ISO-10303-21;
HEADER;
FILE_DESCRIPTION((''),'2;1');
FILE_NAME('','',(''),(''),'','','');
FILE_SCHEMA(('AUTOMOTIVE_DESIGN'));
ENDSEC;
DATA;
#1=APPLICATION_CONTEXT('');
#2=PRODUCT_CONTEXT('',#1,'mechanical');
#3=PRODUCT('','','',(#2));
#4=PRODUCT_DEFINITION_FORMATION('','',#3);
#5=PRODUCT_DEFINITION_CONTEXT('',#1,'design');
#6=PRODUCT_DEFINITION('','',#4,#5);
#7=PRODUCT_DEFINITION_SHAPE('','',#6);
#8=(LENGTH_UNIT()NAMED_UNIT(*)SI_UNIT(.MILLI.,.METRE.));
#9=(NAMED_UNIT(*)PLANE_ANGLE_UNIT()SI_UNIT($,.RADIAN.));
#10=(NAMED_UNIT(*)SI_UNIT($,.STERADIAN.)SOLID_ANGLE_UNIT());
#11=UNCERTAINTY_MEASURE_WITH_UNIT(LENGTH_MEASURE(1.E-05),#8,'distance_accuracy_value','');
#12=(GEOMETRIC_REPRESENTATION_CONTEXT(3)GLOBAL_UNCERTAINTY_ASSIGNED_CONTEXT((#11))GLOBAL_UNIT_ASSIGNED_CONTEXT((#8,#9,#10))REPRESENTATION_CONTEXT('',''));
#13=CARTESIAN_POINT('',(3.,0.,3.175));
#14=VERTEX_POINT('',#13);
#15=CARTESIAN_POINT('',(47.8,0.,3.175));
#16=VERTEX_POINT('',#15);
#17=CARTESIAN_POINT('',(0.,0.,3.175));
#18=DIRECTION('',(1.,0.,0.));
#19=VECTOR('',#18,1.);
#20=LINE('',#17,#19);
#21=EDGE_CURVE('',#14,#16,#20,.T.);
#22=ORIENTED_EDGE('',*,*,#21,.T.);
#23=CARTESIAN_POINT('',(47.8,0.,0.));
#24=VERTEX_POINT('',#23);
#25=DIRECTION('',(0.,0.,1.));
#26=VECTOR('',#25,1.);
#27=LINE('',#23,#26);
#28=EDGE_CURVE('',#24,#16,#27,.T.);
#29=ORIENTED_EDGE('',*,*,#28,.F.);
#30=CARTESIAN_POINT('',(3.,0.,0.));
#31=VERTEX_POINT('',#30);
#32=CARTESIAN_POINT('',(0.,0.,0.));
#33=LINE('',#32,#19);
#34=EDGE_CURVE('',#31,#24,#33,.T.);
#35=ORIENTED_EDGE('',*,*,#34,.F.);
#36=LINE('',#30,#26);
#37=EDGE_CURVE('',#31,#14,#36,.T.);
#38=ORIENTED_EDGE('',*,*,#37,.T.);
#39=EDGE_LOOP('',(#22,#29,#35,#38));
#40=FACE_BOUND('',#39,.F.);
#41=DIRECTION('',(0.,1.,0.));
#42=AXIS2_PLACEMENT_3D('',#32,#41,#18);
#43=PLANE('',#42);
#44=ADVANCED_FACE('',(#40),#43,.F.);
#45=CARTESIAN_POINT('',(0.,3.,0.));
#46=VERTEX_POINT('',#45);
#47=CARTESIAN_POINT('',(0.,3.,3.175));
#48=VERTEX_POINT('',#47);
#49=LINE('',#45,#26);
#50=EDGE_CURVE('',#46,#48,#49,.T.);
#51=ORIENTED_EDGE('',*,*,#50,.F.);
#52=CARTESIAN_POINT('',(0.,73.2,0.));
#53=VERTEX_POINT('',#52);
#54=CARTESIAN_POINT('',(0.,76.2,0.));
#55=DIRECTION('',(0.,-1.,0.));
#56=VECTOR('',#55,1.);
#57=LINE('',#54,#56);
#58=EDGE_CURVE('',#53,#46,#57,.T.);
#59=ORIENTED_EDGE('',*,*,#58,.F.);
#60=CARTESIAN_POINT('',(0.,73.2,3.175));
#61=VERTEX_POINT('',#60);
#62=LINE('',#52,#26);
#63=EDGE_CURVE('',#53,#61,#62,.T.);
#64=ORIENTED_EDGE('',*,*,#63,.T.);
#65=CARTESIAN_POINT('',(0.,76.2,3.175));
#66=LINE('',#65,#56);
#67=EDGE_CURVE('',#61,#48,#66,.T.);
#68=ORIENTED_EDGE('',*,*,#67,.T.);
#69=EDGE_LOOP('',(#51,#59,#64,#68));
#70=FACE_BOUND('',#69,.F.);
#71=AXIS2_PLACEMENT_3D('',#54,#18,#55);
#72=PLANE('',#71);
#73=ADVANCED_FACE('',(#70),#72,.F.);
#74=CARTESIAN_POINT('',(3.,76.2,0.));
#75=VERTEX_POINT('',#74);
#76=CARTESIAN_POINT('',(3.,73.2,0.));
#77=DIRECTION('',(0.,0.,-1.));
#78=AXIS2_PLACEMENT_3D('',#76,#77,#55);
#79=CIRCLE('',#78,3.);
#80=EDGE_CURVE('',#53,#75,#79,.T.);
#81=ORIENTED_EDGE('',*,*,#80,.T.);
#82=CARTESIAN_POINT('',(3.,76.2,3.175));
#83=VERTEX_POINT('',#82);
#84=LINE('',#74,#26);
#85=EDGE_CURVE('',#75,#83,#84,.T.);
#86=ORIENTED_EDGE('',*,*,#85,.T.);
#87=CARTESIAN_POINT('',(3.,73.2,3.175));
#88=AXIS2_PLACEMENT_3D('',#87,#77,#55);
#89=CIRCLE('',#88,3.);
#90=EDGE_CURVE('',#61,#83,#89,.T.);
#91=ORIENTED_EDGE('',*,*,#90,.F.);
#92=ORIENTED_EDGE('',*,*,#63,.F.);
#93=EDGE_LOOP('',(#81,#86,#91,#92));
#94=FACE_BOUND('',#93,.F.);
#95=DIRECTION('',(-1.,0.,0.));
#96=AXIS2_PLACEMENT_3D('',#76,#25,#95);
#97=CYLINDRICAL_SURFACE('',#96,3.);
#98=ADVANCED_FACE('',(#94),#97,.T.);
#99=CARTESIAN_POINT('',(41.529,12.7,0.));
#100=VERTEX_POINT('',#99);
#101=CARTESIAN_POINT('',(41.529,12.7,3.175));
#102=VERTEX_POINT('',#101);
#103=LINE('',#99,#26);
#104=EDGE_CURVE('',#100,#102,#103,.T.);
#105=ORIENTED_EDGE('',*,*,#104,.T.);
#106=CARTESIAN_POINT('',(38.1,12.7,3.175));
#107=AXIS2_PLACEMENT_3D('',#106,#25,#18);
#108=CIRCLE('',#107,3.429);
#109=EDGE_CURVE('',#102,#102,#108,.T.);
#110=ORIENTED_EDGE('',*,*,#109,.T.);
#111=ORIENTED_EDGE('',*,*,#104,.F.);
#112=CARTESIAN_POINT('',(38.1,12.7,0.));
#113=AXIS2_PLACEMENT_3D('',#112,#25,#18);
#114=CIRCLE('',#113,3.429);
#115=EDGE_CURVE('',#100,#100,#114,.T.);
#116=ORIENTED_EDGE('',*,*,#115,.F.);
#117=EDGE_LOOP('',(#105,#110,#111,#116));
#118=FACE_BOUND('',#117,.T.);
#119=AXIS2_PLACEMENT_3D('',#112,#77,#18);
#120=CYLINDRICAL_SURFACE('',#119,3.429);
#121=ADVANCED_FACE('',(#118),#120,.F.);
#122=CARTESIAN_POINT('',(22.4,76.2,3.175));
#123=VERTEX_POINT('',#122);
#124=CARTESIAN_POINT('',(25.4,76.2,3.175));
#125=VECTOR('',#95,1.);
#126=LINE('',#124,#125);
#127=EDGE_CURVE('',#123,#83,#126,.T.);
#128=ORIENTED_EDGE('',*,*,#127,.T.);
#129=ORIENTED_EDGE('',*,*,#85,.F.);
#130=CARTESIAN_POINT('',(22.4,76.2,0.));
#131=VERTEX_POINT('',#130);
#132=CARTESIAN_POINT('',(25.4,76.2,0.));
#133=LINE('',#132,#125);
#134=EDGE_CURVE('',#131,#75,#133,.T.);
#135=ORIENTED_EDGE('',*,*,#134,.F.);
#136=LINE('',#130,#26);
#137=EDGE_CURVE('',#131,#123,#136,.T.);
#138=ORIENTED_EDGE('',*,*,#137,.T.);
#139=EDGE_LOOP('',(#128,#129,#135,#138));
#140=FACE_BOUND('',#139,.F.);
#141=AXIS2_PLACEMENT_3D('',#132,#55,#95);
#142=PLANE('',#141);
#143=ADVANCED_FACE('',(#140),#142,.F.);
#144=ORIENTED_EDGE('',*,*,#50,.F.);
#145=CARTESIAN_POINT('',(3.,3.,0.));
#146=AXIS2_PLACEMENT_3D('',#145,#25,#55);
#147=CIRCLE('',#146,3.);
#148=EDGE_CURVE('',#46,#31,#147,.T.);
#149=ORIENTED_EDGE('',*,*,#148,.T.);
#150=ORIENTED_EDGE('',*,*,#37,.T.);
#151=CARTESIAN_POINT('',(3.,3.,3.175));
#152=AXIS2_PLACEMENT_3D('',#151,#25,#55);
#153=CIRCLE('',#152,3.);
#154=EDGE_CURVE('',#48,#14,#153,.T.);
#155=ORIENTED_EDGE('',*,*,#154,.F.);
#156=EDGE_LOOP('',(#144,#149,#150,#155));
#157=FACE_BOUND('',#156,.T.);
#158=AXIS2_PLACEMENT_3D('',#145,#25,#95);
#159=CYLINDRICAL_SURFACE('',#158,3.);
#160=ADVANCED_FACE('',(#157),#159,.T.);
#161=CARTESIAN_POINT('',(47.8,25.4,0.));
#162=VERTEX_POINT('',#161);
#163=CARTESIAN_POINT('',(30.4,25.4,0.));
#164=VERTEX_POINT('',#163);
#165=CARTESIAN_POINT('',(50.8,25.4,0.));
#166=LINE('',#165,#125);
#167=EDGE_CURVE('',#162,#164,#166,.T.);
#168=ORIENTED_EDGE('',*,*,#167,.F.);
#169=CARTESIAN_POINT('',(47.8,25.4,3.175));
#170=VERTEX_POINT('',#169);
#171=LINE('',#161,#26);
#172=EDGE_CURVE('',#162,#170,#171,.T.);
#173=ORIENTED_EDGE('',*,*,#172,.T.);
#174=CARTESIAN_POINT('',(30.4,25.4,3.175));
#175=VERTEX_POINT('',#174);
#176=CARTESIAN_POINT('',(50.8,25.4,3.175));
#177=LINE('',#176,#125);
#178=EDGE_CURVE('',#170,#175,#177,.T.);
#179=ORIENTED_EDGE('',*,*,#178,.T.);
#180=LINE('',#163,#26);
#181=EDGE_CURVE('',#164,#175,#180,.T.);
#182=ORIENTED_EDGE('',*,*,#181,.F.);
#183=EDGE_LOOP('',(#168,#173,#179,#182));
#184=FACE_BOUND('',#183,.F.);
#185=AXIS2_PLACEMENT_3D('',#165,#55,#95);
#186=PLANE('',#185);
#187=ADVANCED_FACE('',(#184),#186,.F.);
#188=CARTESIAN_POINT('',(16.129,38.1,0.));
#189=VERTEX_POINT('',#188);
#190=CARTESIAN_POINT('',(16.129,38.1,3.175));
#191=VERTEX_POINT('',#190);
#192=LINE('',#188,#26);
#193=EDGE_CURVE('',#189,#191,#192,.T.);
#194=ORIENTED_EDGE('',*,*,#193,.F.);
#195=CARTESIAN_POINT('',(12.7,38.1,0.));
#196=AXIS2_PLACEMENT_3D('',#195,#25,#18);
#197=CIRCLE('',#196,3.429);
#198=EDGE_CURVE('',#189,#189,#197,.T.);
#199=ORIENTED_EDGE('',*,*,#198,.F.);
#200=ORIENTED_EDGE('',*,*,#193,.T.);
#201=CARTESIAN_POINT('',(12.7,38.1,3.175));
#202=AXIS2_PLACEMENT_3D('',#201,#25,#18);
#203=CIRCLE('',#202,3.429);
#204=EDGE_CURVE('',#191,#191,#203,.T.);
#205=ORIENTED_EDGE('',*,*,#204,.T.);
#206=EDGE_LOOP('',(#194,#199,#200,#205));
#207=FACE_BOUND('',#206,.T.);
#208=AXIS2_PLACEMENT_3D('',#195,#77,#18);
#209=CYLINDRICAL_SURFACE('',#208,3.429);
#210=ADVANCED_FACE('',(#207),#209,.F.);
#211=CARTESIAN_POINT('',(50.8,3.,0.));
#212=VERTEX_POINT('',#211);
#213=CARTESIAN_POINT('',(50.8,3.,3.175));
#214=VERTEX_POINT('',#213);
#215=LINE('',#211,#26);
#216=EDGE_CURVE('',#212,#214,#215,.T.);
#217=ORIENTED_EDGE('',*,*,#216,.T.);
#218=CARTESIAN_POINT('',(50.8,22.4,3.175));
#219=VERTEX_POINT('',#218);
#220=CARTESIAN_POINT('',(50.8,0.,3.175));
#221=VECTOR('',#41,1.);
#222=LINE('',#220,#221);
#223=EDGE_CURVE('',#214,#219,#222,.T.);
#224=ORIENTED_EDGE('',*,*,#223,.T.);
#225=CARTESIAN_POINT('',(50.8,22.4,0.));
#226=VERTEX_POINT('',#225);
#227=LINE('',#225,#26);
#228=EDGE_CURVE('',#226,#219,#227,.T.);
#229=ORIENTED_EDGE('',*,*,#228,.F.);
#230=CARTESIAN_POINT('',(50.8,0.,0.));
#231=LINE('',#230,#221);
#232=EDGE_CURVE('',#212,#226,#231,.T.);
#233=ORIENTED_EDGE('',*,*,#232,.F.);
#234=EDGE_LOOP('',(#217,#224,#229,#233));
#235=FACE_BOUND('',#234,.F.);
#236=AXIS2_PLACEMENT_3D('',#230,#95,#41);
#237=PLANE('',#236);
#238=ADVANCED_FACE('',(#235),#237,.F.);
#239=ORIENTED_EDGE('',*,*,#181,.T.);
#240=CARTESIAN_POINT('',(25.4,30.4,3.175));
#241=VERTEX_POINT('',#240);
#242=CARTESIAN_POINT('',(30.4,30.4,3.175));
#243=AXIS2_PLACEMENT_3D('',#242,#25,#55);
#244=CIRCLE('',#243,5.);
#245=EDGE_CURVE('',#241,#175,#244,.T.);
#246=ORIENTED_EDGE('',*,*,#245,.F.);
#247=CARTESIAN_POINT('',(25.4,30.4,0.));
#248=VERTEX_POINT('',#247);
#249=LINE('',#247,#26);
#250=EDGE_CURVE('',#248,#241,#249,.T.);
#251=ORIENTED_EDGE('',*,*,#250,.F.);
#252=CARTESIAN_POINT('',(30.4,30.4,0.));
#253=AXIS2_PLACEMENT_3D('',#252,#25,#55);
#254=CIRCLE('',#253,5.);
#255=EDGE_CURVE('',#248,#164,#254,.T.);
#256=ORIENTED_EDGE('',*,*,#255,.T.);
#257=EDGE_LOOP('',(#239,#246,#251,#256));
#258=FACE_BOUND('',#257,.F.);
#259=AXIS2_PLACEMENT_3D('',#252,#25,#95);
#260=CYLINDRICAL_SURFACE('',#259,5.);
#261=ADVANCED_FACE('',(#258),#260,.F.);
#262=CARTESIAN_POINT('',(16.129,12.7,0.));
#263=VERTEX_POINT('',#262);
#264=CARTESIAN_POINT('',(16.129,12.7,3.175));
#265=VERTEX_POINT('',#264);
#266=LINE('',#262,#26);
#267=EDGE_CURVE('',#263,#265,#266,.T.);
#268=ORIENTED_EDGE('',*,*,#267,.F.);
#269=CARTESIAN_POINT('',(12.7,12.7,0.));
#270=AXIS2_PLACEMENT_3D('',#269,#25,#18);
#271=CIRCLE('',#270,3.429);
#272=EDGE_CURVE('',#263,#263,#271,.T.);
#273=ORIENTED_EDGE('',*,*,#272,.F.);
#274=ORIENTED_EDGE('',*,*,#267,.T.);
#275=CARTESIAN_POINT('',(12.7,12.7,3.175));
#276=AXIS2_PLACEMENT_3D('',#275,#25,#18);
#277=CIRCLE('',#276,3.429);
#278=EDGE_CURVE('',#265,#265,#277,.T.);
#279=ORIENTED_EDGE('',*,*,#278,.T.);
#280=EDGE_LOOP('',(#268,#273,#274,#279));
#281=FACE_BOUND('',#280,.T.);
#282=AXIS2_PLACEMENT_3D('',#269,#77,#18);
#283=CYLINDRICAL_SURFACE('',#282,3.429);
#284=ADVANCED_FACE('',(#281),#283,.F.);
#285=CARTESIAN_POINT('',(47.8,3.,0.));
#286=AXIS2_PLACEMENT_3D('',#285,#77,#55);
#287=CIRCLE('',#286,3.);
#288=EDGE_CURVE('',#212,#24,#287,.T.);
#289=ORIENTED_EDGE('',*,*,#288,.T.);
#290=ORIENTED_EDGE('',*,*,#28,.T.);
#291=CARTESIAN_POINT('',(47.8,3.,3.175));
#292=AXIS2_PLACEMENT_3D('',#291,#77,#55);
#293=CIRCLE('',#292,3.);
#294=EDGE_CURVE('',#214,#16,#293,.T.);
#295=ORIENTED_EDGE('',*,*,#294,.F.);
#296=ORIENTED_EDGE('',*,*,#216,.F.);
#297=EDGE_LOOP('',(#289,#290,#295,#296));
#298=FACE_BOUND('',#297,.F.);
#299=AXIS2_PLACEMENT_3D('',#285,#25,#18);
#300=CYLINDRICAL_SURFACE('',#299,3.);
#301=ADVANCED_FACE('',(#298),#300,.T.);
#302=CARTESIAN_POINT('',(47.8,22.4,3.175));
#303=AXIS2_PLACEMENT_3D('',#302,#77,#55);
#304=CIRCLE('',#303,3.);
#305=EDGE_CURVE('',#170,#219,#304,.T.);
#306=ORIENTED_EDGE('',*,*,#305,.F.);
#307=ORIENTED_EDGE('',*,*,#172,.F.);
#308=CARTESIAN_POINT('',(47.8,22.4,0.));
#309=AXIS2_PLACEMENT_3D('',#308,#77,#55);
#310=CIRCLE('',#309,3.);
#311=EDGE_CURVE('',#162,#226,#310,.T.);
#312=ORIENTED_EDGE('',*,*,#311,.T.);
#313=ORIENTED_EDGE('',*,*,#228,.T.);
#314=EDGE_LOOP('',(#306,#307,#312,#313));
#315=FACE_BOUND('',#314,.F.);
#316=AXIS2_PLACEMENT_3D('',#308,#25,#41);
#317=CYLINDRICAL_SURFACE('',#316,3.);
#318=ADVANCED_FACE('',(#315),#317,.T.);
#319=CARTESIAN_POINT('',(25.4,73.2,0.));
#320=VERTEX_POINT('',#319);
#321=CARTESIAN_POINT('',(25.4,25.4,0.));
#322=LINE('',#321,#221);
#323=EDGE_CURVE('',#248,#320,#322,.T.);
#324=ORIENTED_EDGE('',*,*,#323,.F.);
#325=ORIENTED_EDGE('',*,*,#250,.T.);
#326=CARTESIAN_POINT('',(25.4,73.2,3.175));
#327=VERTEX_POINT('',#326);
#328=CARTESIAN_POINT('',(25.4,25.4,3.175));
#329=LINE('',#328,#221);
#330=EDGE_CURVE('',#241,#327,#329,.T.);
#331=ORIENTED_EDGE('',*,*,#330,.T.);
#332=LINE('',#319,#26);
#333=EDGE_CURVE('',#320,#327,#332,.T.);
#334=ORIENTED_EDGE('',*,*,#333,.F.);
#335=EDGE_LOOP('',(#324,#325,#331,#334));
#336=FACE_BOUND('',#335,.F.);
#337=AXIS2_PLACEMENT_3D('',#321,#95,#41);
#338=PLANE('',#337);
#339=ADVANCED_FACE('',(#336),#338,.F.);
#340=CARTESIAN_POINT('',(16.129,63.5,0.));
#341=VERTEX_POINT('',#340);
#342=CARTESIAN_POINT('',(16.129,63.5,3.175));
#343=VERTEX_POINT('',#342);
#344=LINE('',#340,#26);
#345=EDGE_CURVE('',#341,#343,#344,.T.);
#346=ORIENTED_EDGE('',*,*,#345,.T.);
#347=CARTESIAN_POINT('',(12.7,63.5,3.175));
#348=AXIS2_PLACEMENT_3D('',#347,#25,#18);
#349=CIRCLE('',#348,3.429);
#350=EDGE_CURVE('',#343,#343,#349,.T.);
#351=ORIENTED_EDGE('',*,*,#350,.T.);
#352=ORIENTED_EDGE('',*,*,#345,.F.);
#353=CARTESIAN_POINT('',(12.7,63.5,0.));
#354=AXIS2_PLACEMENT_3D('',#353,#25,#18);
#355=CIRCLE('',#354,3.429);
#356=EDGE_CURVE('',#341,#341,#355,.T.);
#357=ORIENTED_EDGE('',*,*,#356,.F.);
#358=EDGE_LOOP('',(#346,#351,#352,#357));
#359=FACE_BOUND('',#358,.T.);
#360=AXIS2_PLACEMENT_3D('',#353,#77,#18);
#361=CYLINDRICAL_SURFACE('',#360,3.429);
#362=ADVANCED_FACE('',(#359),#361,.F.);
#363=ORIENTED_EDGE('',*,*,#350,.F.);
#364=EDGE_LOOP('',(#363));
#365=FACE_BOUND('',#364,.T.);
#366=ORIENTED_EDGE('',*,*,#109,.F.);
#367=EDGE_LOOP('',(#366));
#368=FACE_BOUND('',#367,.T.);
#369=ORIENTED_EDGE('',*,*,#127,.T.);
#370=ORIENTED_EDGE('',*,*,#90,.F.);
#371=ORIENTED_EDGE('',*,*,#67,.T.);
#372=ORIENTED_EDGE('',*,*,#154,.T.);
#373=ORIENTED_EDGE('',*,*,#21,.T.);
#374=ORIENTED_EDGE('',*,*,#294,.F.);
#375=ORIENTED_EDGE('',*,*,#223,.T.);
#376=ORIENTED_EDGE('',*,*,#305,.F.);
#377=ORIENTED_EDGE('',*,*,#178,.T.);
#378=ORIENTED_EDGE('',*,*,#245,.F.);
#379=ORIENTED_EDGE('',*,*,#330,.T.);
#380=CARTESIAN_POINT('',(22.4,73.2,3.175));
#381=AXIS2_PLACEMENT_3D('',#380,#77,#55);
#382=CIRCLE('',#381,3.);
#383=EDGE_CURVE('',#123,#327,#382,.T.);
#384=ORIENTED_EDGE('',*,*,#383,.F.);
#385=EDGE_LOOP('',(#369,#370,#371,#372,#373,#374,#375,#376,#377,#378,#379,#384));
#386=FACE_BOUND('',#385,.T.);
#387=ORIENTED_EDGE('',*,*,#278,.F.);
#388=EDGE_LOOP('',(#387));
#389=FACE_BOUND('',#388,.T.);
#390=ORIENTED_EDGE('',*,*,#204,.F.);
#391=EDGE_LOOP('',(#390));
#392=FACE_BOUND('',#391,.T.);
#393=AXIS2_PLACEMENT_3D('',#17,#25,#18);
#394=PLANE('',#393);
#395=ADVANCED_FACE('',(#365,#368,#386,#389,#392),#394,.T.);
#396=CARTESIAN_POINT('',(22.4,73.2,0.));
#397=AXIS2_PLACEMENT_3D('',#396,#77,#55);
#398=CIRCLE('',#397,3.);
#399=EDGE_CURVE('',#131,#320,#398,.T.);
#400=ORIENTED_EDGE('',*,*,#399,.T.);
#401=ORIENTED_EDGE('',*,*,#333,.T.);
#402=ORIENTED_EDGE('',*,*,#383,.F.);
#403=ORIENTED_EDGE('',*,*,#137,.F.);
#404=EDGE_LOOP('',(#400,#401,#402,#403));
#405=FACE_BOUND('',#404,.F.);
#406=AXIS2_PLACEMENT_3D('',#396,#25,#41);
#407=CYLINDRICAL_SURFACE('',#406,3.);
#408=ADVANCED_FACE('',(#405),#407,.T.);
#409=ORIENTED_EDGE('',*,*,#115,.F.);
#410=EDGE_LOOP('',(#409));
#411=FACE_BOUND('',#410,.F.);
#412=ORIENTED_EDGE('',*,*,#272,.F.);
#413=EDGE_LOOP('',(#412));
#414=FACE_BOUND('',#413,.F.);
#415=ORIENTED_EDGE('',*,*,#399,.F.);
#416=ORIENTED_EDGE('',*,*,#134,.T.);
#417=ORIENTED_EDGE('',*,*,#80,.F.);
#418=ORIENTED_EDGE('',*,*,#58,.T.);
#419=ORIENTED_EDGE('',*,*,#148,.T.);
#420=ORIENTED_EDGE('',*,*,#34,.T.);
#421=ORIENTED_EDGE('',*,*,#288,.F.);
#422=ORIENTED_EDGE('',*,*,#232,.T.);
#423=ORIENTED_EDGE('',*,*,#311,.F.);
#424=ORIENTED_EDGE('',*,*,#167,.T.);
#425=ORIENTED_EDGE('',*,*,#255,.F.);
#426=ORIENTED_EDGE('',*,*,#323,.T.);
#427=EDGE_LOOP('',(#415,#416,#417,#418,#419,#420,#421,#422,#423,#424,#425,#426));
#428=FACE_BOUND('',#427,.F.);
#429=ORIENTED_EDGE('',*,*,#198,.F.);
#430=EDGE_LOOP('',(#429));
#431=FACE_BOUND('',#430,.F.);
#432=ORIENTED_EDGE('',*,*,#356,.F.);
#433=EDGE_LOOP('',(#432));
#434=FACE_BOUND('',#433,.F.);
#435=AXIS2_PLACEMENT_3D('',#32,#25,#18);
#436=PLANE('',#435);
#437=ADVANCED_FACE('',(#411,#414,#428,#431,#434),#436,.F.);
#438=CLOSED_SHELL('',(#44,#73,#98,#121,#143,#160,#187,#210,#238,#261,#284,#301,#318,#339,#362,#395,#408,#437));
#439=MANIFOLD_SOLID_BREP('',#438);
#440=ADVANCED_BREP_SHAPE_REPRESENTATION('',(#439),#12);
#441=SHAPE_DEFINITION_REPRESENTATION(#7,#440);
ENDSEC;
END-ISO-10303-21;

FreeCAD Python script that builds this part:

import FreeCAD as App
import Part
import Sketcher

V = App.Vector
Q = App.Units.Quantity


def edges_at(feature, points):
    """Names of the edges that pass closest to the given points."""
    edges = feature.Shape.Edges
    near = lambda p: min(range(len(edges)), key=lambda i: edges[i].distToShape(Part.Vertex(*p))[0])
    return sorted({f"Edge{near(p) + 1}" for p in points})


def add_polygon(sketch, points):
    """Adds a closed chain of lines whose ends are joined by coincident constraints."""
    first, n = sketch.GeometryCount, len(points)
    for a, b in zip(points, points[1:] + points[:1]):
        sketch.addGeometry(Part.LineSegment(App.Vector(*a, 0), App.Vector(*b, 0)), False)
    for i in range(n):
        sketch.addConstraint(Sketcher.Constraint("Coincident", first + i, 2, first + (i + 1) % n, 1))

doc = App.newDocument("Part")
body = doc.addObject("PartDesign::Body", "Body")

sketch1 = body.newObject("Sketcher::SketchObject", "Sketch")
sketch1.AttachmentSupport = (doc.getObject("XY_Plane"), [""])
sketch1.MapMode = "FlatFace"
add_polygon(sketch1, [(0, 76.2), (0, 0), (50.8, 0), (50.8, 25.4), (25.4, 25.4), (25.4, 76.2)])
sketch1.addGeometry(Part.Circle(V(12.7, 12.7, 0), V(0, 0, 1), 3.4), False)
sketch1.addGeometry(Part.Circle(V(38.1, 12.7, 0), V(0, 0, 1), 3.4), False)
sketch1.addGeometry(Part.Circle(V(12.7, 38.1, 0), V(0, 0, 1), 3.4), False)
sketch1.addGeometry(Part.Circle(V(12.7, 63.5, 0), V(0, 0, 1), 3.4), False)
sketch1.addConstraint([
    Sketcher.Constraint("Vertical", 0),
    Sketcher.Constraint("Horizontal", 1),
    Sketcher.Constraint("Vertical", 2),
    Sketcher.Constraint("Horizontal", 3),
    Sketcher.Constraint("Vertical", 4),
    Sketcher.Constraint("Horizontal", 5),
    Sketcher.Constraint("Coincident", 0, 2, -1, 1),
    Sketcher.Constraint("Equal", 6, 7),
    Sketcher.Constraint("Equal", 7, 8),
    Sketcher.Constraint("Equal", 8, 9),
    Sketcher.Constraint("Horizontal", 6, 3, 7, 3),
    Sketcher.Constraint("Vertical", 6, 3, 8, 3),
    Sketcher.Constraint("Vertical", 8, 3, 9, 3),
    Sketcher.Constraint("Equal", 3, 5),
    Sketcher.Constraint("Equal", 5, 2),
    Sketcher.Constraint("Equal", 1, 4),
    Sketcher.Constraint("Diameter", 6, Q("0.27 in")),
    Sketcher.Constraint("DistanceX", 1, 1, 1, 2, Q("2 in")),
    Sketcher.Constraint("DistanceX", 6, 3, 7, 3, Q("1 in")),
    Sketcher.Constraint("DistanceY", 6, 3, 8, 3, Q("1 in")),
    Sketcher.Constraint("DistanceY", 8, 3, 9, 3, Q("1 in")),
    Sketcher.Constraint("DistanceX", -1, 1, 6, 3, Q("0.5 in")),
    Sketcher.Constraint("DistanceY", -1, 1, 6, 3, Q("0.5 in")),
])
pad1 = body.newObject("PartDesign::Pad", "Pad")
pad1.Profile = sketch1
pad1.Length = Q("0.125 in")
doc.recompute()

fillet = body.newObject("PartDesign::Fillet", "Fillet")
fillet.Base = (pad1, edges_at(pad1, [
    (0, 0, 1.587),
    (50.8, 0, 1.587),
    (50.8, 25.4, 1.587),
    (0, 76.2, 1.587),
    (25.4, 76.2, 1.587),
]))
fillet.Radius = Q("0.1181102 in")
doc.recompute()

fillet2 = body.newObject("PartDesign::Fillet", "Fillet001")
fillet2.Base = (fillet, edges_at(fillet, [(25.4, 25.4, 1.587)]))
fillet2.Radius = 5

doc.recompute()
